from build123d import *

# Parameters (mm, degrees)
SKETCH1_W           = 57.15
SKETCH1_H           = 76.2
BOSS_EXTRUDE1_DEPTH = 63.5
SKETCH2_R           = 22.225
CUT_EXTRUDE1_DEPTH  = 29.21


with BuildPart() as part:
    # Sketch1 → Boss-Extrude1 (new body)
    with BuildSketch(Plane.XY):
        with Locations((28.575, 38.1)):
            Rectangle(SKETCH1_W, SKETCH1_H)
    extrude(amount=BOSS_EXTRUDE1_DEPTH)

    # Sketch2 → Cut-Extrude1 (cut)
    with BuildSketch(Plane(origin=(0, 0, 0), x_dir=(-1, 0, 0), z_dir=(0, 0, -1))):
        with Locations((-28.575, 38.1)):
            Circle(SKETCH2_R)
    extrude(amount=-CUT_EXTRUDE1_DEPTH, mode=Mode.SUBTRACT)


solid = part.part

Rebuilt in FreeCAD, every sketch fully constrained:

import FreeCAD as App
import Part
import Sketcher
Q = App.Units.Quantity


def add_polygon(sketch, points):
    """Adds a closed chain of lines whose ends are joined by coincident constraints."""
    first, n = sketch.GeometryCount, len(points)
    for a, b in zip(points, points[1:] + points[:1]):
        sketch.addGeometry(Part.LineSegment(App.Vector(*a, 0), App.Vector(*b, 0)), False)
    for i in range(n):
        sketch.addConstraint(Sketcher.Constraint("Coincident", first + i, 2, first + (i + 1) % n, 1))

doc = App.newDocument("Part")
body = doc.addObject("PartDesign::Body", "Body")

sketch1 = body.newObject("Sketcher::SketchObject", "Sketch")
sketch1.AttachmentSupport = (doc.getObject("XY_Plane"), [""])
sketch1.MapMode = "FlatFace"
add_polygon(sketch1, [(0, 76.2), (0, 0), (57.15, 0), (57.15, 76.2)])
sketch1.addConstraint([
    Sketcher.Constraint("Vertical", 0),
    Sketcher.Constraint("Horizontal", 1),
    Sketcher.Constraint("Vertical", 2),
    Sketcher.Constraint("Horizontal", 3),
    Sketcher.Constraint("Coincident", 0, 2, -1, 1),
    Sketcher.Constraint("DistanceY", 0, 2, 0, 1, Q("3 in")),
    Sketcher.Constraint("DistanceX", 1, 1, 1, 2, Q("2.25 in")),
])
pad1 = body.newObject("PartDesign::Pad", "Pad")
pad1.Profile = sketch1
pad1.Length = Q("2.5 in")

sketch2 = body.newObject("Sketcher::SketchObject", "Sketch001")
sketch2.AttachmentSupport = (doc.getObject("XY_Plane"), [""])
sketch2.MapMode = "FlatFace"
sketch2.addGeometry(Part.Circle(App.Vector(28.575, 38.1, 0), App.Vector(0, 0, 1), 22.225), False)
sketch2.addConstraint([
    Sketcher.Constraint("Diameter", 0, Q("1.75 in")),
    Sketcher.Constraint("DistanceY", -1, 1, 0, 3, Q("1.5 in")),
    Sketcher.Constraint("DistanceX", -1, 1, 0, 3, Q("1.125 in")),
])
pocket1 = body.newObject("PartDesign::Pocket", "Pocket")
pocket1.Profile = sketch2
pocket1.Length = Q("1.15 in")
pocket1.Reversed = True

doc.recompute()
